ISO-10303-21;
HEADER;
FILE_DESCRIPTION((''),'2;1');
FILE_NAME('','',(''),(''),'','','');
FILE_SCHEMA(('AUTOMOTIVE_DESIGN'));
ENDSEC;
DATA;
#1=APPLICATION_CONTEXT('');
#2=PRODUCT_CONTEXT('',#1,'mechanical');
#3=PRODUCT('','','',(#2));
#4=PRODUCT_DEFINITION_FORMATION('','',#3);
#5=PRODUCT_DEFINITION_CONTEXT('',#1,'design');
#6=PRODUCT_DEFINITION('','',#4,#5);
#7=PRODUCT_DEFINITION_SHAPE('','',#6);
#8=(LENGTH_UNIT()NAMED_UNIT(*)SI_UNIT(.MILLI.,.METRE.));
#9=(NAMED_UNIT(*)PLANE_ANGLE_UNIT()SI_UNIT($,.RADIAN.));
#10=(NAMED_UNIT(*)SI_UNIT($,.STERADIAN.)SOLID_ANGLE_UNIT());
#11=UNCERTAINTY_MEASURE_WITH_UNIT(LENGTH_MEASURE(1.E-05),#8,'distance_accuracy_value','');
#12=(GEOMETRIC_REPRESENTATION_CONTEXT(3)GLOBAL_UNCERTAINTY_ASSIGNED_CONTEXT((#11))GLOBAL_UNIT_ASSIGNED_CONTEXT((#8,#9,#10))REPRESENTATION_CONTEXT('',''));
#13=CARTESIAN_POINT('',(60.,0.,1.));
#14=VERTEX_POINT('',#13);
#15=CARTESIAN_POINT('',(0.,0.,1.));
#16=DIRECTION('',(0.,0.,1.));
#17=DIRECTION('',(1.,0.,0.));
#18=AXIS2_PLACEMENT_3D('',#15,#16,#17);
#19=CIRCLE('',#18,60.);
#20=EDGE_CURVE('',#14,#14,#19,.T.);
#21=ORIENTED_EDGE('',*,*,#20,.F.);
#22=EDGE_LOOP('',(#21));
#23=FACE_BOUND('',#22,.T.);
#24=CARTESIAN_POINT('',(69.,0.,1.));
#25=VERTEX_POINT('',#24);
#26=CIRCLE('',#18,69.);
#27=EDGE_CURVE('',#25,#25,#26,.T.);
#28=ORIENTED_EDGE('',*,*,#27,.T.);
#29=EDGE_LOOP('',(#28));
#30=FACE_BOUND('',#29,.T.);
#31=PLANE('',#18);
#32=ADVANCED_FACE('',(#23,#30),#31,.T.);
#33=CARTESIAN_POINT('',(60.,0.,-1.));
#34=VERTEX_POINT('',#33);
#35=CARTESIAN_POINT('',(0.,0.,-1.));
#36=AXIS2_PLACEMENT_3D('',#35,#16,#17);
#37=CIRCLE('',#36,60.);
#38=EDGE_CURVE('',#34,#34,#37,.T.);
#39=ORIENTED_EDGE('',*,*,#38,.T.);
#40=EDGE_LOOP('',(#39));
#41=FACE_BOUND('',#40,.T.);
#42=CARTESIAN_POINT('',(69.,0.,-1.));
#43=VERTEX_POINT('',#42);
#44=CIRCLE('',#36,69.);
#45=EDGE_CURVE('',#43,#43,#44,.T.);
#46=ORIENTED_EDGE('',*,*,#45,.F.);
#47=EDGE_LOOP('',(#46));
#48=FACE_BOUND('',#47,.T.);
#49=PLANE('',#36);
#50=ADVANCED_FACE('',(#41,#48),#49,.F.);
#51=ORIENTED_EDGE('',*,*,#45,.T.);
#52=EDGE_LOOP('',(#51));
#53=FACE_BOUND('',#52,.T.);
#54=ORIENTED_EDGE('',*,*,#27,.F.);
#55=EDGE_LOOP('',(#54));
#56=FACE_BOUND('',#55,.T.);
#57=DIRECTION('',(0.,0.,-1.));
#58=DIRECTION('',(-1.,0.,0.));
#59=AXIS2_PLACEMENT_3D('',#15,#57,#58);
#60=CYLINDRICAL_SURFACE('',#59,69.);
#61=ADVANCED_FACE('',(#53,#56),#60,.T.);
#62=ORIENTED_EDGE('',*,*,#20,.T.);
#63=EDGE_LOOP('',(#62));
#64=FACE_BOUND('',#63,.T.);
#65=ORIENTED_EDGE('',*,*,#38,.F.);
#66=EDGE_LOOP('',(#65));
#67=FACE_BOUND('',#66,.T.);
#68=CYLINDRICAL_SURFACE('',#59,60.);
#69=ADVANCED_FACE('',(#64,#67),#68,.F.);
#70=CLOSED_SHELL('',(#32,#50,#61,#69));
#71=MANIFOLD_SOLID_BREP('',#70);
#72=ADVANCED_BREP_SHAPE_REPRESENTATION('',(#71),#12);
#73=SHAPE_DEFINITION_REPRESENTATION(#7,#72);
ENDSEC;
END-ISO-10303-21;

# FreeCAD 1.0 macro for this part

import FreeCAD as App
import Part
import Sketcher

V = App.Vector

doc = App.newDocument("Part")
params = doc.addObject("Spreadsheet::Sheet", "Params")
for row, (alias, value) in enumerate([
    ("sketch1_diameter", "138 mm"),
    ("sketch1_diameter2", "120 mm"),
    ("pad1_length", "2 mm"),
], start=1):
    params.set(f"A{row}", alias)
    params.set(f"B{row}", "=" + value)
    params.setAlias(f"B{row}", alias)

body = doc.addObject("PartDesign::Body", "Body")

# Sketch on XY plane
sketch1 = body.newObject("Sketcher::SketchObject", "Sketch")
sketch1.AttachmentSupport = (doc.getObject("XY_Plane"), [""])
sketch1.MapMode = "FlatFace"
sketch1.addGeometry([
    Part.Circle(V(0, 0, 0), V(0, 0, 1), 69),
    Part.Circle(V(0, 0, 0), V(0, 0, 1), 60),
], False)
sketch1.addConstraint([
    Sketcher.Constraint("Coincident", 0, 3, -1, 1),
    Sketcher.Constraint("Coincident", 1, 3, -1, 1),
    Sketcher.Constraint("Diameter", 0, 138.0),
    Sketcher.Constraint("Diameter", 1, 120.0),
])
sketch1.setExpression("Constraints[2]", "Params.sketch1_diameter")
sketch1.setExpression("Constraints[3]", "Params.sketch1_diameter2")
pad1 = body.newObject("PartDesign::Pad", "Pad")
pad1.Profile = sketch1
pad1.setExpression("Length", "Params.pad1_length")
pad1.Midplane = True

doc.recompute()
